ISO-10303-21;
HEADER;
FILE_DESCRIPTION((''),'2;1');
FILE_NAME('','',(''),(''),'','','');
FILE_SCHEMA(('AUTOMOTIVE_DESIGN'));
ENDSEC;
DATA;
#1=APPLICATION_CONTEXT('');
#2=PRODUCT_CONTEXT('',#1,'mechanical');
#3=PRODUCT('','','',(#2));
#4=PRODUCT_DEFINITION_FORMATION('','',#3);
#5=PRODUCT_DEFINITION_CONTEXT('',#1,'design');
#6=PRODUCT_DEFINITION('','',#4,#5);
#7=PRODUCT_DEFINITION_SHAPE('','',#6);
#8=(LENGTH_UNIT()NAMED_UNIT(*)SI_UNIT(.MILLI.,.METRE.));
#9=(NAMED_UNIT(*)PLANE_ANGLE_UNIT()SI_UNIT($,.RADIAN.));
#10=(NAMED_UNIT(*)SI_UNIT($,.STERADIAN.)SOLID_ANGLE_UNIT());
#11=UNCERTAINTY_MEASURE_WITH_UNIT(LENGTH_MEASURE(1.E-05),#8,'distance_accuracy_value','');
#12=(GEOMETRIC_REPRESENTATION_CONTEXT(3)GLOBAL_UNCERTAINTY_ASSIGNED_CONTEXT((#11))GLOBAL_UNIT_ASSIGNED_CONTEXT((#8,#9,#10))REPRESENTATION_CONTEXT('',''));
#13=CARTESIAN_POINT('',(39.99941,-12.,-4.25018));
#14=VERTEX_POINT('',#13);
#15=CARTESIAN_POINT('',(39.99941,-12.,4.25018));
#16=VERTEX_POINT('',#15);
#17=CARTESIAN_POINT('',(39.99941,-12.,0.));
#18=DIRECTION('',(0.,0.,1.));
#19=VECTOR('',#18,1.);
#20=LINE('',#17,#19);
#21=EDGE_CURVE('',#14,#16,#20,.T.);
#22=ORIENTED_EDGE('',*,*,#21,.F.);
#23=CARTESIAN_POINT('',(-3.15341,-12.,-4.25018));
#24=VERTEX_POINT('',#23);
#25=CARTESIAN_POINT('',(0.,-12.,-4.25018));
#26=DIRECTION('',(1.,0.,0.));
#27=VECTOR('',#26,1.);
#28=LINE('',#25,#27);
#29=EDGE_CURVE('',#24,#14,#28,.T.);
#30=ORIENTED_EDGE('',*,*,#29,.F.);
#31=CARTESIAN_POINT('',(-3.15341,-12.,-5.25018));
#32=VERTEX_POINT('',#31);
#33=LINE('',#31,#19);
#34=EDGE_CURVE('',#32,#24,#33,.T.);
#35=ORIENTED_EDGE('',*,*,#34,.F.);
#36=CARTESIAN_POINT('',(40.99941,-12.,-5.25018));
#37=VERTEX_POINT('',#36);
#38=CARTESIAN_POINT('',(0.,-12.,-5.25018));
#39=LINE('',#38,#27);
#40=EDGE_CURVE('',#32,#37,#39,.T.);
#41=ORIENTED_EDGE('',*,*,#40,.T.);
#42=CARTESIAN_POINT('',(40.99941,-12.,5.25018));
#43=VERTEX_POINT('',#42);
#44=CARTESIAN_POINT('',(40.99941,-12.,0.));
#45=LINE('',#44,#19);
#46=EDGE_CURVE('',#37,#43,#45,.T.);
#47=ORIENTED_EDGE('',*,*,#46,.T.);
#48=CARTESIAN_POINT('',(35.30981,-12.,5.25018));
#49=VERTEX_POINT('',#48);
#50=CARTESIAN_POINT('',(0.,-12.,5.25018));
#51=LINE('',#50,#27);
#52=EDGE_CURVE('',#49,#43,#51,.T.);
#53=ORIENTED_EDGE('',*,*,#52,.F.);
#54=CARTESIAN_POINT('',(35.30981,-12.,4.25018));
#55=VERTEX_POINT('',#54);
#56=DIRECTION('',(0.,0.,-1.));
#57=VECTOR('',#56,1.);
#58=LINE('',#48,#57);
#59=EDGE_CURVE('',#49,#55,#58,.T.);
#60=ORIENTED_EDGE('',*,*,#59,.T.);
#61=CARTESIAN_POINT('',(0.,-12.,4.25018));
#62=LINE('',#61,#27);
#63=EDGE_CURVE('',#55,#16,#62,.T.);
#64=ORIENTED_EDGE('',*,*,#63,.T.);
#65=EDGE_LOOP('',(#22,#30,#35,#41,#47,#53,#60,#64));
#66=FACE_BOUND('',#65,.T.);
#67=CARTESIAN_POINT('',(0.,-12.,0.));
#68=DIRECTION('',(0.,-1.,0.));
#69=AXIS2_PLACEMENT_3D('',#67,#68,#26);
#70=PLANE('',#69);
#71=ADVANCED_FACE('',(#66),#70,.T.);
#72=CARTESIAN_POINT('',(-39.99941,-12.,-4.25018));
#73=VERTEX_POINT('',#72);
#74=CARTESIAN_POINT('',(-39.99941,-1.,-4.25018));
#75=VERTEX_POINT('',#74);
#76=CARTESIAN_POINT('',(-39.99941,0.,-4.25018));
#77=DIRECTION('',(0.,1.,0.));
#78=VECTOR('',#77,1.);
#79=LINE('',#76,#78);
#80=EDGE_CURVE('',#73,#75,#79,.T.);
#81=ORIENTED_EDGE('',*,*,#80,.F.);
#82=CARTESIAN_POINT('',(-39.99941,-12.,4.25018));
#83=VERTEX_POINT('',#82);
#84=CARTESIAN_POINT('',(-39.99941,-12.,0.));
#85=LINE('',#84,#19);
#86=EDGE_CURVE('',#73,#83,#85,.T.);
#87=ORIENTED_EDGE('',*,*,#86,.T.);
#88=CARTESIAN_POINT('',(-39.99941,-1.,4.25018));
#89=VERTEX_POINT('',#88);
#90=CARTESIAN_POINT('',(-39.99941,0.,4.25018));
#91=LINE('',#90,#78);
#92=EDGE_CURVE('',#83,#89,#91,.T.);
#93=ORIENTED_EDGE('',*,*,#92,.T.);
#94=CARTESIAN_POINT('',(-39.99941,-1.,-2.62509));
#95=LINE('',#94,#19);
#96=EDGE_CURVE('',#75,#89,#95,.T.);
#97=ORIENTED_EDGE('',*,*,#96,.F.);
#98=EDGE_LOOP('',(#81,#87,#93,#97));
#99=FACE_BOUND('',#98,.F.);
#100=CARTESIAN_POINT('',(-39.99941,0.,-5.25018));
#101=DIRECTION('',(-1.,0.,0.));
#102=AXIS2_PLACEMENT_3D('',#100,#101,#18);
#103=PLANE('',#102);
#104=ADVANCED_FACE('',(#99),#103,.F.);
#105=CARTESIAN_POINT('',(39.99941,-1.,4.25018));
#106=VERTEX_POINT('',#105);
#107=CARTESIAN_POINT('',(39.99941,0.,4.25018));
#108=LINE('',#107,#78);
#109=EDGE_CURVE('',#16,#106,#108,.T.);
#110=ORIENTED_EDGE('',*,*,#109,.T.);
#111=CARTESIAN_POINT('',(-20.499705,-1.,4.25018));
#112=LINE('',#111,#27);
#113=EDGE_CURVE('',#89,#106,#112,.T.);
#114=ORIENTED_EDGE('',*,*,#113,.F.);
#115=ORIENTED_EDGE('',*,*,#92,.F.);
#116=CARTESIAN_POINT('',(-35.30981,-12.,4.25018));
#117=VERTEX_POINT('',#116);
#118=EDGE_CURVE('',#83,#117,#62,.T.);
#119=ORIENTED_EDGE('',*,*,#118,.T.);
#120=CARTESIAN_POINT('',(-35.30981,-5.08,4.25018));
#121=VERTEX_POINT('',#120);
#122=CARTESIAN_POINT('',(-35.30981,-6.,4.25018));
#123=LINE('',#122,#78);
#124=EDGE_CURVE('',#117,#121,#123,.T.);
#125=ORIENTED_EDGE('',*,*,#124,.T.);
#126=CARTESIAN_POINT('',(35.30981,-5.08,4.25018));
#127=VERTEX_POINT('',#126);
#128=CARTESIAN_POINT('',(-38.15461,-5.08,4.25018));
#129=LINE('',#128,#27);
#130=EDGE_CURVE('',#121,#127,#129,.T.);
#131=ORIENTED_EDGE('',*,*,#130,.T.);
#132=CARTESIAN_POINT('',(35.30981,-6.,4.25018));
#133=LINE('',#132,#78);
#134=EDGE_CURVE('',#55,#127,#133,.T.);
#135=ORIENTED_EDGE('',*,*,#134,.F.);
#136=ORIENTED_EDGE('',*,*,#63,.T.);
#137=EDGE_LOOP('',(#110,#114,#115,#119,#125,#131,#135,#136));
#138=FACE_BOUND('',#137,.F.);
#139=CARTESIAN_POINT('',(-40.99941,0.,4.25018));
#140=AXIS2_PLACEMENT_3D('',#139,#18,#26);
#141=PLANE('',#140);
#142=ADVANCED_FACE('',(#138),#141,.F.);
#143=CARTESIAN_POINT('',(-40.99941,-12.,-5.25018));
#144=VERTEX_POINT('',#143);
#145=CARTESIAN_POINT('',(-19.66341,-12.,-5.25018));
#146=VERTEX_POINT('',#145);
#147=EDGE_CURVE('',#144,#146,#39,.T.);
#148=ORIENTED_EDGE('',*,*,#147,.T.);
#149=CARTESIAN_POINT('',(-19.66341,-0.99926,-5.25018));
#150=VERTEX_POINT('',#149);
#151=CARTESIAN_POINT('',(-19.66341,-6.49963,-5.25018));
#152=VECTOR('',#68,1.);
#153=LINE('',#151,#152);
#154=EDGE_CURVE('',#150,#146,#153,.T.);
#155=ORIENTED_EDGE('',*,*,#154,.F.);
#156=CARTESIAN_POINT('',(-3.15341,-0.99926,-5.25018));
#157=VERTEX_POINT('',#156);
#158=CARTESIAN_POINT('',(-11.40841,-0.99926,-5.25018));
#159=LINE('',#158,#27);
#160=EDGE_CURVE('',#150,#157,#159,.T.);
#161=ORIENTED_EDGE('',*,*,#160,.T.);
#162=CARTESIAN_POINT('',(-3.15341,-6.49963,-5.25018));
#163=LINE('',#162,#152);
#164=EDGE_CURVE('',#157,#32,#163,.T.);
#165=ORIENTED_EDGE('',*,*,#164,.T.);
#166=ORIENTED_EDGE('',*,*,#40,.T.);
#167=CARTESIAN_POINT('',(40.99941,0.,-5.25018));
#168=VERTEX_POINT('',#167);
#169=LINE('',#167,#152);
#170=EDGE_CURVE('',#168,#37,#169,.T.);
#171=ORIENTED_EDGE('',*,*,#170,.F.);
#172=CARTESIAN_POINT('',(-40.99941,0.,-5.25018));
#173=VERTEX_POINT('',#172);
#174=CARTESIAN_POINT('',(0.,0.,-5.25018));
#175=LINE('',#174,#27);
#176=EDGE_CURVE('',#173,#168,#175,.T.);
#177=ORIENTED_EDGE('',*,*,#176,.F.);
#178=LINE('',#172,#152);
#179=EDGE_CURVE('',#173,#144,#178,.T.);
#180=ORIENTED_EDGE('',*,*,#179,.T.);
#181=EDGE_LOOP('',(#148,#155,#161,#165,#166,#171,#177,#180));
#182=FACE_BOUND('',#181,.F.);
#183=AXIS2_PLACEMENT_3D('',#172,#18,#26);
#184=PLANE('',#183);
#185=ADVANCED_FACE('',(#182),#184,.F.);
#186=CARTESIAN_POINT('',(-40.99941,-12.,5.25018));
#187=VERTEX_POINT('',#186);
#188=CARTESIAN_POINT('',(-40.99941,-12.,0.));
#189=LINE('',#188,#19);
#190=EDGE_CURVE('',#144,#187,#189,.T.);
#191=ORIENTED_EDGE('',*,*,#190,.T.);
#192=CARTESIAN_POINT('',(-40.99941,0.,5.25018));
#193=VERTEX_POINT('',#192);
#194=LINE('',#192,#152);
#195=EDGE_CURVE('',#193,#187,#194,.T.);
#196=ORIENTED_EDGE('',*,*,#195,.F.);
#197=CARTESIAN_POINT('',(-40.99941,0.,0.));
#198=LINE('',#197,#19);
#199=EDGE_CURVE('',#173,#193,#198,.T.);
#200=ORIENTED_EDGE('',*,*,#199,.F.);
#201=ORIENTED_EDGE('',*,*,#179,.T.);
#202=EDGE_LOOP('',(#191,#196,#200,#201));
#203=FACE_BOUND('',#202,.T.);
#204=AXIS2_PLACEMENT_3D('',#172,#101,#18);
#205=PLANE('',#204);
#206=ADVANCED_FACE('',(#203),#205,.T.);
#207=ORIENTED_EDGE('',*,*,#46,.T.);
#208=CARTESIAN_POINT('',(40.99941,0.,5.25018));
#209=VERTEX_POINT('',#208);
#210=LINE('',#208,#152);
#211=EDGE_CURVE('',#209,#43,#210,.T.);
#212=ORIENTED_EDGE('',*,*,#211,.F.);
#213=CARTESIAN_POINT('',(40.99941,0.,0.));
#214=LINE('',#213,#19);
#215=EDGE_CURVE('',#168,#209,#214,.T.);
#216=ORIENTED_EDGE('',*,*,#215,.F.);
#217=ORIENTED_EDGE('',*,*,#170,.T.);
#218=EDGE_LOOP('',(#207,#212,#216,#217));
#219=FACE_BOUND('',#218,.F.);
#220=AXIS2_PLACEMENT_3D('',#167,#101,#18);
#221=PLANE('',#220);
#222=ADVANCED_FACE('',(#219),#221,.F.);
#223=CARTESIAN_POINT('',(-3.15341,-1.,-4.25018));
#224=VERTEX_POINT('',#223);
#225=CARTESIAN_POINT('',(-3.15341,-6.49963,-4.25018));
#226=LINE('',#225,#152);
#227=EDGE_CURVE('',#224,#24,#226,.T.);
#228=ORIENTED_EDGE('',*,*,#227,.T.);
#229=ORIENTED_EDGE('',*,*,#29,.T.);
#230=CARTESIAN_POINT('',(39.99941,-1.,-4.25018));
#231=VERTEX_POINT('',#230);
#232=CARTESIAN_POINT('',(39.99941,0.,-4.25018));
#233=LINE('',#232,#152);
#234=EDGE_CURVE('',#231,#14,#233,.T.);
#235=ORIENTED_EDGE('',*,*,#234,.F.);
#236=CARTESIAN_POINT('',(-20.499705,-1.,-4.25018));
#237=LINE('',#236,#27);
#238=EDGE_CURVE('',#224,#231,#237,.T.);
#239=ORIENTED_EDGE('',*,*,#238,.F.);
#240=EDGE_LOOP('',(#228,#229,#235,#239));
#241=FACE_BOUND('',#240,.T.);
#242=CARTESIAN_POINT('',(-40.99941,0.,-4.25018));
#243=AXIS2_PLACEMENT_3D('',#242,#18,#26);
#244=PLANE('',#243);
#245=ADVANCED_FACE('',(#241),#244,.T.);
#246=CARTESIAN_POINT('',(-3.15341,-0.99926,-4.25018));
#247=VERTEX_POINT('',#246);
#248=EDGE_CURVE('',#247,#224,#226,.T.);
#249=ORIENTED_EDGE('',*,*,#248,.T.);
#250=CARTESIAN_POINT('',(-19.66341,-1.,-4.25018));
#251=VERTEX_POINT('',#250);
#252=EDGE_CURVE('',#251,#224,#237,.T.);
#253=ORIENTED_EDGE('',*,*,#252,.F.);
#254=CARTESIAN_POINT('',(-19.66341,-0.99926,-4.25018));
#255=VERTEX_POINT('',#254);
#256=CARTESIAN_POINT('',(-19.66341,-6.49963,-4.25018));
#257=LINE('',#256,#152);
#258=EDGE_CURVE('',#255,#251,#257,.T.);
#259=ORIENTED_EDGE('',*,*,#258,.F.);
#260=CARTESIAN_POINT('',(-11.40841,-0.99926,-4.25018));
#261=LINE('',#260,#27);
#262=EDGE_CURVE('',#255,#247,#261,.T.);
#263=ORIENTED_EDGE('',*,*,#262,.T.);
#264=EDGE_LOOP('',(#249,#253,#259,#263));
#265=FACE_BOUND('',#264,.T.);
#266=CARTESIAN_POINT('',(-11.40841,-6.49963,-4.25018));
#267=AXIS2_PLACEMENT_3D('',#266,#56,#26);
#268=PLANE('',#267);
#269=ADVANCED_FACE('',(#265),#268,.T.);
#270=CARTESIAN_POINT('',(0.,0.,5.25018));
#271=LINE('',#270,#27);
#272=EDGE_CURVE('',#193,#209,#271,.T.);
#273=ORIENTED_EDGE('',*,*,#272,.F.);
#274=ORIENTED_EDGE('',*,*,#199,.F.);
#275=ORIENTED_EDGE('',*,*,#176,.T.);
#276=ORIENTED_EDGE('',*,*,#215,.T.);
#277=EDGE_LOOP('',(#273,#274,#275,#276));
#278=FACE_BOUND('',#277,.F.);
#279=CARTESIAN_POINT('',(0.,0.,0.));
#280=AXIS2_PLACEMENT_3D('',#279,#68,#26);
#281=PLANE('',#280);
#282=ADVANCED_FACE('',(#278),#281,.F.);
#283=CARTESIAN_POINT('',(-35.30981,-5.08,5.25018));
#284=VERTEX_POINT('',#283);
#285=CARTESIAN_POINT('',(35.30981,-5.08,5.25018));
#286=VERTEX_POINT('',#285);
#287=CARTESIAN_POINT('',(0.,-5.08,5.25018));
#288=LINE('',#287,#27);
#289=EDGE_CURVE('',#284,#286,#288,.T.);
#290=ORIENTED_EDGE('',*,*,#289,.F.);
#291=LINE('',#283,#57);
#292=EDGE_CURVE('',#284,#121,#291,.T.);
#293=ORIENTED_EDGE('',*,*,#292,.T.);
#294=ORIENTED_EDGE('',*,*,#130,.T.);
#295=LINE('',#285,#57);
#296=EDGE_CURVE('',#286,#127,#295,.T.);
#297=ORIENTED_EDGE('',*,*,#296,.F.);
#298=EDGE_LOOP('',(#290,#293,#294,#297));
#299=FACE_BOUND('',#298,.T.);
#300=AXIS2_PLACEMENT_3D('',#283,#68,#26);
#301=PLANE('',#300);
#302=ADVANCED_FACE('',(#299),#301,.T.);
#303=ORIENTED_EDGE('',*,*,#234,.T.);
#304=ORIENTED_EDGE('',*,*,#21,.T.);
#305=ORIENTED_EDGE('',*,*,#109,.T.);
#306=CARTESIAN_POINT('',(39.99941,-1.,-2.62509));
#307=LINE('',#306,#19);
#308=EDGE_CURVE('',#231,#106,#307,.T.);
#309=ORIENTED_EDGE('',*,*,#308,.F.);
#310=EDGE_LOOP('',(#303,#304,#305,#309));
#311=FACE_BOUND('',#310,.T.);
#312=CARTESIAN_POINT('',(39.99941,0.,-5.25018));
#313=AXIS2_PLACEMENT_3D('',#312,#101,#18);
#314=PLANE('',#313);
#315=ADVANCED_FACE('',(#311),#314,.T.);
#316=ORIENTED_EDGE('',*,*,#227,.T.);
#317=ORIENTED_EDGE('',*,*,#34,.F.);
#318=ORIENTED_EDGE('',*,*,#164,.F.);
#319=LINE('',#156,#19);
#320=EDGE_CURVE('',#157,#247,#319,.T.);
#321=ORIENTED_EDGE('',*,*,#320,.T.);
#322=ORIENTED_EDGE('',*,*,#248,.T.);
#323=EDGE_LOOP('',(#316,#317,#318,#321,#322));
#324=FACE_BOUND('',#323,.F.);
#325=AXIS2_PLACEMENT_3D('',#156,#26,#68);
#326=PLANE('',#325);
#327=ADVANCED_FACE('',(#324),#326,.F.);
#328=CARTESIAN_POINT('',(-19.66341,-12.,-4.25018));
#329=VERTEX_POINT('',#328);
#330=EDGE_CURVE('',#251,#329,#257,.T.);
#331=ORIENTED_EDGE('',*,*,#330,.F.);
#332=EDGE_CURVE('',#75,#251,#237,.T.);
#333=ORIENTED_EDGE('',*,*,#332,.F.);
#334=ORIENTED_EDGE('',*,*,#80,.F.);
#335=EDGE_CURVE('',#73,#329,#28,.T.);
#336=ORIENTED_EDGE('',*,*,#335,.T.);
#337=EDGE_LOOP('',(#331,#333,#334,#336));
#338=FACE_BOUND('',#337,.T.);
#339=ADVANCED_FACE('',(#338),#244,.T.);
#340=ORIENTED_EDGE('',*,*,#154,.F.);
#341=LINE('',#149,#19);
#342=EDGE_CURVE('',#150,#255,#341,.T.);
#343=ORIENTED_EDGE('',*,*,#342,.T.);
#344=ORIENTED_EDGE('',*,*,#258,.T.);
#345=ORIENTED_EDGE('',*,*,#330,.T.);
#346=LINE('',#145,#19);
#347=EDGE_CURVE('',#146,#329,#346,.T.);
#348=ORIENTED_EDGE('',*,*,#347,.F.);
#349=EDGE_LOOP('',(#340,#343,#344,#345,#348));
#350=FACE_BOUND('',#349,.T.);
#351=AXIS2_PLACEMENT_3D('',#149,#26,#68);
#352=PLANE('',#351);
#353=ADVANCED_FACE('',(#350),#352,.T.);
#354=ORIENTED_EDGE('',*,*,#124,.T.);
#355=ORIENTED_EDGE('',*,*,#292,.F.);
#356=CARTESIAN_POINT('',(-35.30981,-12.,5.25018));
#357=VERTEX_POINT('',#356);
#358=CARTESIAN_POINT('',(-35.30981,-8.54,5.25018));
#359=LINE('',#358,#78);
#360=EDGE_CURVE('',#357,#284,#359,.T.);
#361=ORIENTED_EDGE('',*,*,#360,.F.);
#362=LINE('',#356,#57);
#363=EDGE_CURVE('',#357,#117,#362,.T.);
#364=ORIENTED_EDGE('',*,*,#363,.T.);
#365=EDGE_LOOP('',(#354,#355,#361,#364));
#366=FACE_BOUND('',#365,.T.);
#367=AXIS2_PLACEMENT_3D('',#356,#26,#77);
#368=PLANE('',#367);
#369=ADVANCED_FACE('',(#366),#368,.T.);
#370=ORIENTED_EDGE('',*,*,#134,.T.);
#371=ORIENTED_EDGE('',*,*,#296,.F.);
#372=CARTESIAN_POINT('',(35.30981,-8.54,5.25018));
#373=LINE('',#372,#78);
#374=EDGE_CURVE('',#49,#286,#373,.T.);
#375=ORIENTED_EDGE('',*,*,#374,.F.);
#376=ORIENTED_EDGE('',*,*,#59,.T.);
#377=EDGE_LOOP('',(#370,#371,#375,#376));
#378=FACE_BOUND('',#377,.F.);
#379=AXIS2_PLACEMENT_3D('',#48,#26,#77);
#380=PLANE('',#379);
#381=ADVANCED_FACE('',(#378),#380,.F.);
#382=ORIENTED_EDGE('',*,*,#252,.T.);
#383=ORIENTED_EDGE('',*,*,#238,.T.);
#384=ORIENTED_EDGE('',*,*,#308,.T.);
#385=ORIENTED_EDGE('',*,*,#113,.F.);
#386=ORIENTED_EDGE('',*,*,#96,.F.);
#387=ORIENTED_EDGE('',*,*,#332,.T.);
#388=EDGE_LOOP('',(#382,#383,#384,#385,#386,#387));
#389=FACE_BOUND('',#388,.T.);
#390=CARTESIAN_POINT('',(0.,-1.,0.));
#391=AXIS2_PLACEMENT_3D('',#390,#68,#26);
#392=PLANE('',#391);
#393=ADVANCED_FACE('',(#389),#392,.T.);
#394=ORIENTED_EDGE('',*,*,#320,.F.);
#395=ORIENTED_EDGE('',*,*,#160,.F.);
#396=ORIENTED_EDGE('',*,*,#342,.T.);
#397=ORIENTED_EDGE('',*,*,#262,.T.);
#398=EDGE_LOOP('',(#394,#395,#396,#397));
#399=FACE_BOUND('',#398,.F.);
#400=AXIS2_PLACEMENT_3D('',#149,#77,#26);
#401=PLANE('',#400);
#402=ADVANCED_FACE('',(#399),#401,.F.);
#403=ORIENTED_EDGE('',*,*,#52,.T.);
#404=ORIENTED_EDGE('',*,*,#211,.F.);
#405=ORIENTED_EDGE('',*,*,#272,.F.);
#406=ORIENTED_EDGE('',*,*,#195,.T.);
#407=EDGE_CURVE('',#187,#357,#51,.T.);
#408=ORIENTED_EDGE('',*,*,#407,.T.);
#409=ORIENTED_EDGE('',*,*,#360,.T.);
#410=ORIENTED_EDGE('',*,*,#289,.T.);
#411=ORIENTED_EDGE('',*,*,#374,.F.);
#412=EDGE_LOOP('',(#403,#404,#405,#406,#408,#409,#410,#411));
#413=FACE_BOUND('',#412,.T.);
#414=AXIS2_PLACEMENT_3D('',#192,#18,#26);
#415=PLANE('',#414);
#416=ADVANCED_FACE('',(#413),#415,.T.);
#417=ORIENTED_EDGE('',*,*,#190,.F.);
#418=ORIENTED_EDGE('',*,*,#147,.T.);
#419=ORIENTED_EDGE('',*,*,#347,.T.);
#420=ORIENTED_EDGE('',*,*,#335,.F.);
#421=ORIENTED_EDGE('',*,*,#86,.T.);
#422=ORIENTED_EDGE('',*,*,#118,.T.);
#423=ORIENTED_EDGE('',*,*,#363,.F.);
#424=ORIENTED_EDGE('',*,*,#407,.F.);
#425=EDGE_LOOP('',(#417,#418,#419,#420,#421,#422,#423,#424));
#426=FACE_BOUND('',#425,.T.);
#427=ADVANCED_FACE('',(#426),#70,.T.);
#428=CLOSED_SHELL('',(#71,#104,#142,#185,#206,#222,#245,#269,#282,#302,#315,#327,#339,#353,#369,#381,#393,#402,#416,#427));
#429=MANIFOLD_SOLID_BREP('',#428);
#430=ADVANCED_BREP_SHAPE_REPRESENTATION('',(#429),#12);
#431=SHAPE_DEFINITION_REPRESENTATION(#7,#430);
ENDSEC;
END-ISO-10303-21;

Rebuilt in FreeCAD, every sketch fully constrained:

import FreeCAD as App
import Part
import Sketcher


def faces_at(feature, points):
    """Names of the faces that lie closest to the given points."""
    faces = feature.Shape.Faces
    near = lambda p: min(range(len(faces)), key=lambda i: faces[i].distToShape(Part.Vertex(*p))[0])
    return sorted({f"Face{near(p) + 1}" for p in points})


def add_polygon(sketch, points):
    """Adds a closed chain of lines whose ends are joined by coincident constraints."""
    first, n = sketch.GeometryCount, len(points)
    for a, b in zip(points, points[1:] + points[:1]):
        sketch.addGeometry(Part.LineSegment(App.Vector(*a, 0), App.Vector(*b, 0)), False)
    for i in range(n):
        sketch.addConstraint(Sketcher.Constraint("Coincident", first + i, 2, first + (i + 1) % n, 1))

doc = App.newDocument("Part")
body = doc.addObject("PartDesign::Body", "Body")

# Sketch on XZ plane
sketch1 = body.newObject("Sketcher::SketchObject", "Sketch")
sketch1.AttachmentSupport = (doc.getObject("XZ_Plane"), [""])
sketch1.MapMode = "FlatFace"
add_polygon(sketch1, [(-40.99941, 5.25018), (-40.99941, -5.25018), (40.99941, -5.25018), (40.99941, 5.25018)])  # lines 0-3
sketch1.addConstraint(Sketcher.Constraint("Vertical", 0))
sketch1.addConstraint(Sketcher.Constraint("Horizontal", 1))
sketch1.addConstraint(Sketcher.Constraint("Vertical", 2))
sketch1.addConstraint(Sketcher.Constraint("Horizontal", 3))
sketch1.addConstraint(Sketcher.Constraint("Symmetric", 0, 2, 2, 2, -1, 1))
sketch1.addConstraint(Sketcher.Constraint("DistanceX", 1, 1, 1, 2, 81.99882))
sketch1.addConstraint(Sketcher.Constraint("DistanceY", 0, 2, 0, 1, 10.50036))
pad1 = body.newObject("PartDesign::Pad", "Pad")
pad1.Profile = sketch1
pad1.Length = 12
doc.recompute()

thickness = body.newObject("PartDesign::Thickness", "Thickness")
thickness.Base = (pad1, faces_at(pad1, [(0, -12, 0)]))
thickness.Value = 1
thickness.Reversed = True
thickness.Join = "Arc"

# Sketch on XY plane
sketch2 = body.newObject("Sketcher::SketchObject", "Sketch001")
sketch2.AttachmentSupport = (doc.getObject("XY_Plane"), [""])
sketch2.MapMode = "FlatFace"
sketch2.AttachmentOffset = App.Placement(App.Vector(0, 0, -5.25018), App.Rotation())
add_polygon(sketch2, [(-19.66341, -12), (-19.66341, -0.99926), (-3.15341, -0.99926), (-3.15341, -12)])  # lines 0-3
sketch2.addConstraint(Sketcher.Constraint("Vertical", 0))
sketch2.addConstraint(Sketcher.Constraint("Horizontal", 1))
sketch2.addConstraint(Sketcher.Constraint("Vertical", 2))
sketch2.addConstraint(Sketcher.Constraint("Horizontal", 3))
sketch2.addConstraint(Sketcher.Constraint("DistanceY", 2, 2, -1, 1, 12.0))
sketch2.addConstraint(Sketcher.Constraint("DistanceX", 1, 1, 1, 2, 16.51))
sketch2.addConstraint(Sketcher.Constraint("DistanceY", 0, 1, 0, 2, 11.00074))
sketch2.addConstraint(Sketcher.Constraint("DistanceX", 0, 2, -1, 1, 19.66341))
pocket1 = body.newObject("PartDesign::Pocket", "Pocket")
pocket1.Profile = sketch2
pocket1.Length = 1
pocket1.Reversed = True

# Sketch on XY plane
sketch3 = body.newObject("Sketcher::SketchObject", "Sketch002")
sketch3.AttachmentSupport = (doc.getObject("XY_Plane"), [""])
sketch3.MapMode = "FlatFace"
sketch3.AttachmentOffset = App.Placement(App.Vector(0, 0, 5.25018), App.Rotation())
add_polygon(sketch3, [(-35.30981, -5.08), (-35.30981, -12), (35.30981, -12), (35.30981, -5.08)])  # lines 0-3
sketch3.addConstraint(Sketcher.Constraint("Vertical", 0))
sketch3.addConstraint(Sketcher.Constraint("Horizontal", 1))
sketch3.addConstraint(Sketcher.Constraint("Vertical", 2))
sketch3.addConstraint(Sketcher.Constraint("Horizontal", 3))
sketch3.addConstraint(Sketcher.Constraint("DistanceY", 0, 2, -1, 1, 12.0))
sketch3.addConstraint(Sketcher.Constraint("DistanceY", 0, 2, 0, 1, 6.92))
sketch3.addConstraint(Sketcher.Constraint("DistanceX", 1, 1, 1, 2, 70.61962))
sketch3.addConstraint(Sketcher.Constraint("DistanceX", 0, 2, -1, 1, 35.30981))
pocket2 = body.newObject("PartDesign::Pocket", "Pocket001")
pocket2.Profile = sketch3
pocket2.Length = 2.54

doc.recompute()
